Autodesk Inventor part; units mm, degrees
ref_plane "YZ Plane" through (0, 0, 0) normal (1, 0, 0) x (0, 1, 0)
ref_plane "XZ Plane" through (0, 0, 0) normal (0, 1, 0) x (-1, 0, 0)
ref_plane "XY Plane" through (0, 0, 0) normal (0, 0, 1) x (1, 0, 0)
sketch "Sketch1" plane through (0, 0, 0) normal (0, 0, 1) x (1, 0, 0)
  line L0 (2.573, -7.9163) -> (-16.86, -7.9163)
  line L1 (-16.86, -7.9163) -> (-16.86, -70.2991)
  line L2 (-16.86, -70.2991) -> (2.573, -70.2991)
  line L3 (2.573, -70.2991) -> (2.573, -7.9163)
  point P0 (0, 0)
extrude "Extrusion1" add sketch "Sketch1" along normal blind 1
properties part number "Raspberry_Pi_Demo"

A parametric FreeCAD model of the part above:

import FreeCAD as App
import Part
import Sketcher

V = App.Vector
Q = App.Units.Quantity

doc = App.newDocument("Part")
body = doc.addObject("PartDesign::Body", "Body")

sketch1 = body.newObject("Sketcher::SketchObject", "Sketch")
sketch1.AttachmentSupport = (doc.getObject("XY_Plane"), [""])
sketch1.MapMode = "FlatFace"
sketch1.addGeometry([
    Part.LineSegment(V(3, -70, 0), V(3, -8, 0)),
    Part.LineSegment(V(3, -8, 0), V(-17, -8, 0)),
    Part.LineSegment(V(-17, -8, 0), V(-17, -70, 0)),
    Part.LineSegment(V(-17, -70, 0), V(3, -70, 0)),
], False)
sketch1.addConstraint([
    Sketcher.Constraint("Coincident", 0, 2, 1, 1),
    Sketcher.Constraint("Coincident", 1, 2, 2, 1),
    Sketcher.Constraint("Coincident", 2, 2, 3, 1),
    Sketcher.Constraint("Coincident", 3, 2, 0, 1),
    Sketcher.Constraint("Vertical", 0),
    Sketcher.Constraint("Horizontal", 1),
    Sketcher.Constraint("Vertical", 2),
    Sketcher.Constraint("Horizontal", 3),
    Sketcher.Constraint("DistanceX", 1, 2, 1, 1, Q("19.433 mm")),
    Sketcher.Constraint("DistanceX", 1, 2, -1, 1, Q("16.86 mm")),
    Sketcher.Constraint("DistanceY", 0, 1, 0, 2, Q("62.3828 mm")),
    Sketcher.Constraint("DistanceY", 2, 2, -1, 1, Q("70.299 mm")),
])
pad1 = body.newObject("PartDesign::Pad", "Pad")
pad1.Profile = sketch1
pad1.Length = 1

doc.recompute()
